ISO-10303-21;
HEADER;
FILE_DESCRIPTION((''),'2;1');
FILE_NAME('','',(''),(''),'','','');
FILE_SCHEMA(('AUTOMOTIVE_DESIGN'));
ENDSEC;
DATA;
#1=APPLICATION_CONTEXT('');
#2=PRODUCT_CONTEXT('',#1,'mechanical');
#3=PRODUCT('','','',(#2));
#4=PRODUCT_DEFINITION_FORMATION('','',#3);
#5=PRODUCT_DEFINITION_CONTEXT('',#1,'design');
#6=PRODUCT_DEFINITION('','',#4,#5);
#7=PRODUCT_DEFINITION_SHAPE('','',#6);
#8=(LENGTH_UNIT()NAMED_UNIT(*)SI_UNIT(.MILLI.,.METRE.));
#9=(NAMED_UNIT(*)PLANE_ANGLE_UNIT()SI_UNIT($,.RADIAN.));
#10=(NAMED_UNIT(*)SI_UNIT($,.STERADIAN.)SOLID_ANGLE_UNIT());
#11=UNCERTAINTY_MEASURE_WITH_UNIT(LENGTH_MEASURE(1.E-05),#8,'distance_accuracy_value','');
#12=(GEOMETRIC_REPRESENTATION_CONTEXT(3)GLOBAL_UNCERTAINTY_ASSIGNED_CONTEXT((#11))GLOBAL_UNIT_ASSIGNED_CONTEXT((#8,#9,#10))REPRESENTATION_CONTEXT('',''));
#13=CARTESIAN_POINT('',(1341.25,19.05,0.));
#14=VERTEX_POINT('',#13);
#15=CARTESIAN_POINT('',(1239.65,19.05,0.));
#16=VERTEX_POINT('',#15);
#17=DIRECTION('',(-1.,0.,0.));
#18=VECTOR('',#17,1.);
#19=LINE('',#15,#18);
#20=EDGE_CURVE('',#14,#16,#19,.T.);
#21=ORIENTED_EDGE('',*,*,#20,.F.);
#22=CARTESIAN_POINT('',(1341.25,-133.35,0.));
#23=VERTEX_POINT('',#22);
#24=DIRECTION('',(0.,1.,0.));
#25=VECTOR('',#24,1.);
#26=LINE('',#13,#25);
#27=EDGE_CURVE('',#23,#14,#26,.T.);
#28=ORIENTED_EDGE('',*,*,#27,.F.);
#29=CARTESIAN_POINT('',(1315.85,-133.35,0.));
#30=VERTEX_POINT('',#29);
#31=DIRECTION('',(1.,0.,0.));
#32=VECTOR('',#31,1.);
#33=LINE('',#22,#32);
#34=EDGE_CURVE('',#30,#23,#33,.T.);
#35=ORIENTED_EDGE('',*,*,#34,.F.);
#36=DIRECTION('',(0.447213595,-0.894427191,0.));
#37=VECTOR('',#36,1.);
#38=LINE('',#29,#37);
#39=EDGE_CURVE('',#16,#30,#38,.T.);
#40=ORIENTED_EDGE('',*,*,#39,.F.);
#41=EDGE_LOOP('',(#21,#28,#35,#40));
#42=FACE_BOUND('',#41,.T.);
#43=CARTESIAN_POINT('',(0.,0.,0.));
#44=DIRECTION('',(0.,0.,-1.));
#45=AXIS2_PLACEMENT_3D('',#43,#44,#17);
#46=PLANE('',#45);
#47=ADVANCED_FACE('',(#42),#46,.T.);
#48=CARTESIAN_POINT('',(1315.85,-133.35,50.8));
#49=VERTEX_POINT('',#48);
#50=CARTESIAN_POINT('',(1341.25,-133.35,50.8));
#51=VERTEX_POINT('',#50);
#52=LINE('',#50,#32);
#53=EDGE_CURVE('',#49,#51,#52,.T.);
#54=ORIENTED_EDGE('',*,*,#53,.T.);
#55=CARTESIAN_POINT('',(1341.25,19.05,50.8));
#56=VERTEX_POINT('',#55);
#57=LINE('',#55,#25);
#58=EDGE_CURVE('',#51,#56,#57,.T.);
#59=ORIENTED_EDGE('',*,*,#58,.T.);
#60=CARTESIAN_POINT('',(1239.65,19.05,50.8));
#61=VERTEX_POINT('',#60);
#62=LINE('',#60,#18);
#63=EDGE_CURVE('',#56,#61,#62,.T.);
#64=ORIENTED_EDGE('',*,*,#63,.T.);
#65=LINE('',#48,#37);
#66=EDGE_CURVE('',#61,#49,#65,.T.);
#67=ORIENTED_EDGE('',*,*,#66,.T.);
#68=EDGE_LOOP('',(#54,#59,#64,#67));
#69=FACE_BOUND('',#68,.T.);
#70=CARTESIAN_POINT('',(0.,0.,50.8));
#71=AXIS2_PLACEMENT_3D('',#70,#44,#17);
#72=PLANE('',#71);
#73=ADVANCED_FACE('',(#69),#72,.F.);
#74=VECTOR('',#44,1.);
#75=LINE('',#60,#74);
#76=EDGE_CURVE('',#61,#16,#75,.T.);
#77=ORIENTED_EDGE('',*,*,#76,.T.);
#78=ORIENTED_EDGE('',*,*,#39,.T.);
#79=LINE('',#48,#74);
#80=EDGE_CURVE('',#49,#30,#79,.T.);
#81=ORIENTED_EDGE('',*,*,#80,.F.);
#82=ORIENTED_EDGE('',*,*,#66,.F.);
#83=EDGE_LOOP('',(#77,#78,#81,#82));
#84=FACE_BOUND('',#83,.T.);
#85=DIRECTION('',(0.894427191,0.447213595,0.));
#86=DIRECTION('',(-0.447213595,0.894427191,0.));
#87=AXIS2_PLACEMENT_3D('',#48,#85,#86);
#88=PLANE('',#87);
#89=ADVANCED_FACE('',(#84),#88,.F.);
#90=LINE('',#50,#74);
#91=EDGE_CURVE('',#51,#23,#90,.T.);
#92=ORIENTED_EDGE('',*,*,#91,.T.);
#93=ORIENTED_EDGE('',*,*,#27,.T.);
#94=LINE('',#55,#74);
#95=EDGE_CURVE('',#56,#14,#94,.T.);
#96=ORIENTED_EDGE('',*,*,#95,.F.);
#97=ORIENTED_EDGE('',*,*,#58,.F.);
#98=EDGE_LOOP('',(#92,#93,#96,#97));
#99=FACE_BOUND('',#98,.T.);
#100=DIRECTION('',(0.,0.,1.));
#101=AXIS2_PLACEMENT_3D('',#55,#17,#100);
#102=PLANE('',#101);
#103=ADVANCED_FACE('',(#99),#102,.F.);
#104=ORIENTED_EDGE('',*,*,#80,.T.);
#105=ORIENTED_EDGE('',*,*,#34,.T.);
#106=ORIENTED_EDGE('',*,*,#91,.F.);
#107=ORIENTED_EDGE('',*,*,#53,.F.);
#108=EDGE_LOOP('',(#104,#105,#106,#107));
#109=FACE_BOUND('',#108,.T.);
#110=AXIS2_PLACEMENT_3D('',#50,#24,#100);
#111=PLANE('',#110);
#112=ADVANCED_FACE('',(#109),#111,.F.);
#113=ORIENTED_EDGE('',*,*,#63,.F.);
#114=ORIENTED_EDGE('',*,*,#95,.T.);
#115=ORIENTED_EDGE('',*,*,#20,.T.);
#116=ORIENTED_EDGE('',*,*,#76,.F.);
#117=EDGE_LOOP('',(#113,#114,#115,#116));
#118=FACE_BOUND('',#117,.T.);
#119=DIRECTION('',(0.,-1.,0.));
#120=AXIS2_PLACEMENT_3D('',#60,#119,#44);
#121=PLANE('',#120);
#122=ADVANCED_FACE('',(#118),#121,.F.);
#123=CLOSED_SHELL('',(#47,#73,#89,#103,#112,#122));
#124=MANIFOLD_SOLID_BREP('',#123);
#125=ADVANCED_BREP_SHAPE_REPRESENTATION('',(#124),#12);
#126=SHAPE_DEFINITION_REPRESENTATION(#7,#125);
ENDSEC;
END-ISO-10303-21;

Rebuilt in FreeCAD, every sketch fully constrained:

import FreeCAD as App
import Part
import Sketcher
Q = App.Units.Quantity

doc = App.newDocument("Part")
body = doc.addObject("PartDesign::Body", "Body")

sketch1 = body.newObject("Sketcher::SketchObject", "Sketch")
sketch1.AttachmentSupport = (doc.getObject("XY_Plane"), [""])
sketch1.MapMode = "FlatFace"
sketch1.addGeometry(Part.LineSegment(App.Vector(1341, -133, 0), App.Vector(1341, 19, 0)), False)
sketch1.addGeometry(Part.LineSegment(App.Vector(1341, 19, 0), App.Vector(1240, 19, 0)), False)
sketch1.addGeometry(Part.LineSegment(App.Vector(1240, 19, 0), App.Vector(1316, -133, 0)), False)
sketch1.addGeometry(Part.LineSegment(App.Vector(1316, -133, 0), App.Vector(1341, -133, 0)), False)
sketch1.addConstraint(Sketcher.Constraint("Coincident", 0, 2, 1, 1))
sketch1.addConstraint(Sketcher.Constraint("Coincident", 1, 2, 2, 1))
sketch1.addConstraint(Sketcher.Constraint("Coincident", 2, 2, 3, 1))
sketch1.addConstraint(Sketcher.Constraint("Coincident", 3, 2, 0, 1))
sketch1.addConstraint(Sketcher.Constraint("Vertical", 0))
sketch1.addConstraint(Sketcher.Constraint("Horizontal", 1))
sketch1.addConstraint(Sketcher.Constraint("Horizontal", 3))
sketch1.addConstraint(Sketcher.Constraint("DistanceX", 1, 2, 1, 1, Q("4 in")))
sketch1.addConstraint(Sketcher.Constraint("DistanceX", 3, 1, 3, 2, Q("1 in")))
sketch1.addConstraint(Sketcher.Constraint("DistanceY", 0, 1, 0, 2, Q("6 in")))
sketch1.addConstraint(Sketcher.Constraint("DistanceY", -1, 1, 0, 2, Q("0.75 in")))
sketch1.addConstraint(Sketcher.Constraint("DistanceX", -1, 1, 0, 2, Q("1341.25 mm")))
pad1 = body.newObject("PartDesign::Pad", "Pad")
pad1.Profile = sketch1
pad1.Length = Q("2 in")

doc.recompute()
